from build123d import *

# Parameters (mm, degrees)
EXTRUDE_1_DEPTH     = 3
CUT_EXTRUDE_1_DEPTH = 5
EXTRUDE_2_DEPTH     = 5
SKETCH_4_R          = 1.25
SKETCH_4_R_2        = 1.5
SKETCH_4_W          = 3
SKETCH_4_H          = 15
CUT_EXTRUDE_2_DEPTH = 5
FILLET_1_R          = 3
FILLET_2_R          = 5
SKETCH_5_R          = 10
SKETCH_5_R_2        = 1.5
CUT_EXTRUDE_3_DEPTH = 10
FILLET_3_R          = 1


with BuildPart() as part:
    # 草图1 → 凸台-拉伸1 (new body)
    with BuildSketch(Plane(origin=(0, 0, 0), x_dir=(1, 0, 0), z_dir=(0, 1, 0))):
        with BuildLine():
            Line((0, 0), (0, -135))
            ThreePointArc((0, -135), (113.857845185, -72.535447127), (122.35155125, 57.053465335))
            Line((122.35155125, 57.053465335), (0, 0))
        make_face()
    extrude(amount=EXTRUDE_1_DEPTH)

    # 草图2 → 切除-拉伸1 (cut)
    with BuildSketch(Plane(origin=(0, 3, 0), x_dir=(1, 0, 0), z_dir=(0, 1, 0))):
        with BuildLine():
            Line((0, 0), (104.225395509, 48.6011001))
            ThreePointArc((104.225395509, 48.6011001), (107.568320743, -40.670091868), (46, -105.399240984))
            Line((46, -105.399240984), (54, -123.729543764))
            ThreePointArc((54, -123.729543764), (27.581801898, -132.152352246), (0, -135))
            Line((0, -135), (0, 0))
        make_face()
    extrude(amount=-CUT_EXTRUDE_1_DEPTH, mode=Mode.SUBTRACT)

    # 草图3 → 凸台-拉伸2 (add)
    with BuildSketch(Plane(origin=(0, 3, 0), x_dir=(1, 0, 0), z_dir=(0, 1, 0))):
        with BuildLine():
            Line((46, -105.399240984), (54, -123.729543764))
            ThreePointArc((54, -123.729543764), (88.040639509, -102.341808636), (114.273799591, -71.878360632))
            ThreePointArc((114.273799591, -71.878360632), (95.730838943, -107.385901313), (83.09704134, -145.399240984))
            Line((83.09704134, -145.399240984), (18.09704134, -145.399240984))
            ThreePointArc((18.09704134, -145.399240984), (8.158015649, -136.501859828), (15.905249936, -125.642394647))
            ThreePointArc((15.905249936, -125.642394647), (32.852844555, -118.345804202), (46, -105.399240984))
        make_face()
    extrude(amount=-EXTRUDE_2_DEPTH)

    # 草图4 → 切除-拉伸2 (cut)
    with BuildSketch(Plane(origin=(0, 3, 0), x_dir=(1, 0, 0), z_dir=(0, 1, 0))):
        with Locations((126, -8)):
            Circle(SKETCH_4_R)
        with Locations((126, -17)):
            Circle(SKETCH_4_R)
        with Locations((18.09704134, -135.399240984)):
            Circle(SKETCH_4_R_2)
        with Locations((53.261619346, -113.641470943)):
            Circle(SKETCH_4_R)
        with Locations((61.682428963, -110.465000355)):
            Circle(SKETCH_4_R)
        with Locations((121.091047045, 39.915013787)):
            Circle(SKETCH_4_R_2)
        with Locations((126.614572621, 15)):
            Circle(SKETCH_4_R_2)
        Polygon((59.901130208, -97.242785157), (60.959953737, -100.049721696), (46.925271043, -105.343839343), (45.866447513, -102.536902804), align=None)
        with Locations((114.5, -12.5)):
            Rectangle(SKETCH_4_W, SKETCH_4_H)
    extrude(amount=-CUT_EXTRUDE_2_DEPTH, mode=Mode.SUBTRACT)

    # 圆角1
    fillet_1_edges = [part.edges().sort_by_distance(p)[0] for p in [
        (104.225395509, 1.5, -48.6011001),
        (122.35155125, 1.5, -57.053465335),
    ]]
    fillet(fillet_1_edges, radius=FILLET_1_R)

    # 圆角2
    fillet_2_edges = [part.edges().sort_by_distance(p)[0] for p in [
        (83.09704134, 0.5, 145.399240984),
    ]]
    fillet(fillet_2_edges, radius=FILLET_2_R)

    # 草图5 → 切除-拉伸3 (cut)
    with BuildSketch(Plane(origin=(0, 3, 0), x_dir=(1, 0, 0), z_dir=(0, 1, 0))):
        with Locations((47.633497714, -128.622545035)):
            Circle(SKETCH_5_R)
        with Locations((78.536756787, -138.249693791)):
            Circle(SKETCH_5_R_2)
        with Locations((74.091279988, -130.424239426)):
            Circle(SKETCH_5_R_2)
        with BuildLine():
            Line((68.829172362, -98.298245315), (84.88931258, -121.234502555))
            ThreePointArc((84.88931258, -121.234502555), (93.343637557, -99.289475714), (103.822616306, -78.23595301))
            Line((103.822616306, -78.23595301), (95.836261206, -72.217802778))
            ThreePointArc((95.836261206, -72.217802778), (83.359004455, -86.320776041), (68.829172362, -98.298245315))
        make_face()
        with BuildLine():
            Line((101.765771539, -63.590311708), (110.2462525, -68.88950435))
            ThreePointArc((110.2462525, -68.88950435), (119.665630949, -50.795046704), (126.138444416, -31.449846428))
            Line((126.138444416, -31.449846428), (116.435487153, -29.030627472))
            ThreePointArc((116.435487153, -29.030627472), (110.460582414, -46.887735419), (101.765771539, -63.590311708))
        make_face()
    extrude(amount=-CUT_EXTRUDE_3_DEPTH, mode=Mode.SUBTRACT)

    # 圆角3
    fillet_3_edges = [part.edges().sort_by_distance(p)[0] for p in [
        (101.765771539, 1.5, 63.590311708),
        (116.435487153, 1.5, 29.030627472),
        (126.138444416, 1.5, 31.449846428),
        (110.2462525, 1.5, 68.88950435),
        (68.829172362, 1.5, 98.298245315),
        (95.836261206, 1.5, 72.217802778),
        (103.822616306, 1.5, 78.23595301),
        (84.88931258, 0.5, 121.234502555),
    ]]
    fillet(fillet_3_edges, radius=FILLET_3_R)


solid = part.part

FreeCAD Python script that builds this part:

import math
import FreeCAD as App
import Part
import Sketcher
from FreeCAD import Vector
Q = App.Units.Quantity


def edges_at(feature, points):
    """Names of the edges that pass closest to the given points."""
    edges = feature.Shape.Edges
    near = lambda p: min(range(len(edges)), key=lambda i: edges[i].distToShape(Part.Vertex(*p))[0])
    return sorted({f"Edge{near(p) + 1}" for p in points})

doc = App.newDocument("Part")
body = doc.addObject("PartDesign::Body", "Body")

# Sketch on XZ plane
sketch1 = body.newObject("Sketcher::SketchObject", "Sketch")
sketch1.AttachmentSupport = (doc.getObject("XZ_Plane"), [""])
sketch1.MapMode = "FlatFace"
sketch1.addGeometry(Part.LineSegment(Vector(0, 0, 0), Vector(0, 135, 0)), False)
sketch1.addGeometry(Part.ArcOfCircle(Part.Circle(Vector(0, 0, 0), Vector(0, 0, 1), 135), math.radians(-25), math.radians(90)), False)
sketch1.addGeometry(Part.LineSegment(Vector(122, -57, 0), Vector(0, 0, 0)), False)
sketch1.addConstraint(Sketcher.Constraint("Coincident", 0, 2, 1, 2))
sketch1.addConstraint(Sketcher.Constraint("Coincident", 1, 1, 2, 1))
sketch1.addConstraint(Sketcher.Constraint("Coincident", 2, 2, 0, 1))
sketch1.addConstraint(Sketcher.Constraint("Vertical", 0))
sketch1.addConstraint(Sketcher.Constraint("Coincident", 1, 3, -1, 1))
sketch1.addConstraint(Sketcher.Constraint("Coincident", 2, 2, -1, 1))
sketch1.addConstraint(Sketcher.Constraint("Radius", 1, Q("135 mm")))
sketch1.addConstraint(Sketcher.Constraint("Angle", 2, Q("155 deg")))
pad1 = body.newObject("PartDesign::Pad", "Pad")
pad1.Profile = sketch1
pad1.Length = 3
pad1.Reversed = True

# Sketch on XZ plane
sketch2 = body.newObject("Sketcher::SketchObject", "Sketch001")
sketch2.AttachmentSupport = (doc.getObject("XZ_Plane"), [""])
sketch2.MapMode = "FlatFace"
sketch2.AttachmentOffset = App.Placement(Vector(0, 0, -3), App.Rotation())
sketch2.addGeometry(Part.LineSegment(Vector(104, -49, 0), Vector(0, 0, 0)), False)
sketch2.addGeometry(Part.LineSegment(Vector(0, 0, 0), Vector(0, 135, 0)), False)
sketch2.addGeometry(Part.ArcOfCircle(Part.Circle(Vector(0, 0, 0), Vector(0, 0, 1), 135), math.radians(66), math.radians(90)), False)
sketch2.addGeometry(Part.LineSegment(Vector(54, 124, 0), Vector(46, 105, 0)), False)
sketch2.addGeometry(Part.ArcOfCircle(Part.Circle(Vector(0, 0, 0), Vector(0, 0, 1), 115), math.radians(-25), math.radians(66)), False)
sketch2.addConstraint(Sketcher.Constraint("Coincident", 0, 2, 1, 1))
sketch2.addConstraint(Sketcher.Constraint("Coincident", 1, 2, 2, 2))
sketch2.addConstraint(Sketcher.Constraint("Coincident", 2, 1, 3, 1))
sketch2.addConstraint(Sketcher.Constraint("Coincident", 3, 2, 4, 2))
sketch2.addConstraint(Sketcher.Constraint("Coincident", 4, 1, 0, 1))
sketch2.addConstraint(Sketcher.Constraint("Vertical", 1))
sketch2.addConstraint(Sketcher.Constraint("Coincident", 2, 3, -1, 1))
sketch2.addConstraint(Sketcher.Constraint("Coincident", 4, 3, -1, 1))
sketch2.addConstraint(Sketcher.Constraint("Coincident", 0, 2, -1, 1))
sketch2.addConstraint(Sketcher.Constraint("Radius", 2, Q("135 mm")))
sketch2.addConstraint(Sketcher.Constraint("Radius", 4, Q("115 mm")))
sketch2.addConstraint(Sketcher.Constraint("Angle", 0, Q("155 deg")))
sketch2.addConstraint(Sketcher.Constraint("DistanceX", -1, 1, 2, 1, Q("54 mm")))
sketch2.addConstraint(Sketcher.Constraint("DistanceX", -1, 1, 3, 2, Q("46 mm")))
pocket1 = body.newObject("PartDesign::Pocket", "Pocket")
pocket1.Profile = sketch2
pocket1.Length = 5
pocket1.Reversed = True

# Sketch on XZ plane
sketch3 = body.newObject("Sketcher::SketchObject", "Sketch002")
sketch3.AttachmentSupport = (doc.getObject("XZ_Plane"), [""])
sketch3.MapMode = "FlatFace"
sketch3.AttachmentOffset = App.Placement(Vector(0, 0, -3), App.Rotation())
sketch3.addGeometry(Part.LineSegment(Vector(54, 124, 0), Vector(46, 105, 0)), False)
sketch3.addGeometry(Part.ArcOfCircle(Part.Circle(Vector(5, 77, 0), Vector(0, 0, 1), 50), math.radians(35), math.radians(77)), False)
sketch3.addGeometry(Part.ArcOfCircle(Part.Circle(Vector(18, 135, 0), Vector(0, 0, 1), 10), math.radians(90), math.radians(257)), False)
sketch3.addGeometry(Part.LineSegment(Vector(18, 145, 0), Vector(83, 145, 0)), False)
sketch3.addGeometry(Part.ArcOfCircle(Part.Circle(Vector(326, 205, 0), Vector(0, 0, 1), 250), math.radians(-166.21), math.radians(-147.83)), False)
sketch3.addGeometry(Part.ArcOfCircle(Part.Circle(Vector(0, 0, 0), Vector(0, 0, 1), 135), math.radians(32), math.radians(66)), False)
sketch3.addConstraint(Sketcher.Constraint("Coincident", 0, 2, 1, 1))
sketch3.addConstraint(Sketcher.Constraint("Tangent", 1, 2, 2, 2))
sketch3.addConstraint(Sketcher.Constraint("Tangent", 2, 1, 3, 1))
sketch3.addConstraint(Sketcher.Constraint("Coincident", 3, 2, 4, 1))
sketch3.addConstraint(Sketcher.Constraint("Tangent", 4, 2, 5, 1))
sketch3.addConstraint(Sketcher.Constraint("Coincident", 5, 2, 0, 1))
sketch3.addConstraint(Sketcher.Constraint("Horizontal", 3))
sketch3.addConstraint(Sketcher.Constraint("Coincident", 5, 3, -1, 1))
sketch3.addConstraint(Sketcher.Constraint("Radius", 1, Q("50 mm")))
sketch3.addConstraint(Sketcher.Constraint("Radius", 2, Q("10 mm")))
sketch3.addConstraint(Sketcher.Constraint("Radius", 4, Q("250 mm")))
sketch3.addConstraint(Sketcher.Constraint("Radius", 5, Q("135 mm")))
sketch3.addConstraint(Sketcher.Constraint("DistanceX", 3, 1, 3, 2, Q("65 mm")))
sketch3.addConstraint(Sketcher.Constraint("Distance", 0, Q("20 mm")))
sketch3.addConstraint(Sketcher.Constraint("DistanceX", -1, 1, 0, 2, Q("46 mm")))
sketch3.addConstraint(Sketcher.Constraint("DistanceX", -1, 1, 5, 2, Q("54 mm")))
sketch3.addConstraint(Sketcher.Constraint("DistanceY", 0, 2, 2, 3, Q("30 mm")))
sketch3.addConstraint(Sketcher.Constraint("DistanceX", -1, 1, 2, 3, Q("18.097041 mm")))
pad2 = body.newObject("PartDesign::Pad", "Pad001")
pad2.Profile = sketch3
pad2.Length = 5

# Sketch on XZ plane
sketch4 = body.newObject("Sketcher::SketchObject", "Sketch003")
sketch4.AttachmentSupport = (doc.getObject("XZ_Plane"), [""])
sketch4.MapMode = "FlatFace"
sketch4.AttachmentOffset = App.Placement(Vector(0, 0, -3), App.Rotation())
sketch4.addGeometry(Part.Circle(Vector(126, 8, 0), Vector(0, 0, 1), 1.2), False)
sketch4.addGeometry(Part.Circle(Vector(126, 17, 0), Vector(0, 0, 1), 1.2), False)
sketch4.addGeometry(Part.Circle(Vector(18.1, 135.4, 0), Vector(0, 0, 1), 1.5), False)
sketch4.addGeometry(Part.Circle(Vector(53.3, 113.6, 0), Vector(0, 0, 1), 1.2), False)
sketch4.addGeometry(Part.Circle(Vector(61.7, 110.5, 0), Vector(0, 0, 1), 1.2), False)
sketch4.addGeometry(Part.Circle(Vector(121.1, -39.9, 0), Vector(0, 0, 1), 1.5), False)
sketch4.addGeometry(Part.Circle(Vector(126.6, -15, 0), Vector(0, 0, 1), 1.5), False)
sketch4.addGeometry(Part.LineSegment(Vector(61, 100, 0), Vector(59.9, 97.2, 0)), False)
sketch4.addGeometry(Part.LineSegment(Vector(59.9, 97.2, 0), Vector(45.9, 102.5, 0)), False)
sketch4.addGeometry(Part.LineSegment(Vector(45.9, 102.5, 0), Vector(46.9, 105.3, 0)), False)
sketch4.addGeometry(Part.LineSegment(Vector(46.9, 105.3, 0), Vector(61, 100, 0)), False)
sketch4.addGeometry(Part.LineSegment(Vector(113, 5, 0), Vector(113, 20, 0)), False)
sketch4.addGeometry(Part.LineSegment(Vector(113, 20, 0), Vector(116, 20, 0)), False)
sketch4.addGeometry(Part.LineSegment(Vector(116, 20, 0), Vector(116, 5, 0)), False)
sketch4.addGeometry(Part.LineSegment(Vector(116, 5, 0), Vector(113, 5, 0)), False)
sketch4.addConstraint(Sketcher.Constraint("Coincident", 7, 2, 8, 1))
sketch4.addConstraint(Sketcher.Constraint("Coincident", 8, 2, 9, 1))
sketch4.addConstraint(Sketcher.Constraint("Coincident", 9, 2, 10, 1))
sketch4.addConstraint(Sketcher.Constraint("Coincident", 10, 2, 7, 1))
sketch4.addConstraint(Sketcher.Constraint("Coincident", 11, 2, 12, 1))
sketch4.addConstraint(Sketcher.Constraint("Coincident", 12, 2, 13, 1))
sketch4.addConstraint(Sketcher.Constraint("Coincident", 13, 2, 14, 1))
sketch4.addConstraint(Sketcher.Constraint("Coincident", 14, 2, 11, 1))
sketch4.addConstraint(Sketcher.Constraint("Vertical", 11))
sketch4.addConstraint(Sketcher.Constraint("Horizontal", 12))
sketch4.addConstraint(Sketcher.Constraint("Vertical", 13))
sketch4.addConstraint(Sketcher.Constraint("Horizontal", 14))
sketch4.addConstraint(Sketcher.Constraint("Equal", 0, 1))
sketch4.addConstraint(Sketcher.Constraint("Equal", 1, 3))
sketch4.addConstraint(Sketcher.Constraint("Equal", 3, 4))
sketch4.addConstraint(Sketcher.Constraint("Equal", 2, 5))
sketch4.addConstraint(Sketcher.Constraint("Equal", 5, 6))
sketch4.addConstraint(Sketcher.Constraint("Perpendicular", 7, 8))
sketch4.addConstraint(Sketcher.Constraint("Perpendicular", 8, 9))
sketch4.addConstraint(Sketcher.Constraint("Perpendicular", 9, 10))
sketch4.addConstraint(Sketcher.Constraint("Vertical", 0, 3, 1, 3))
sketch4.addConstraint(Sketcher.Constraint("Diameter", 2, Q("3 mm")))
sketch4.addConstraint(Sketcher.Constraint("Diameter", 0, Q("2.5 mm")))
sketch4.addConstraint(Sketcher.Constraint("DistanceX", 12, 1, 12, 2, Q("3 mm")))
sketch4.addConstraint(Sketcher.Constraint("DistanceY", 11, 1, 11, 2, Q("15 mm")))
sketch4.addConstraint(Sketcher.Constraint("Distance", 7, Q("3 mm")))
sketch4.addConstraint(Sketcher.Constraint("Distance", 8, Q("15 mm")))
sketch4.addConstraint(Sketcher.Constraint("DistanceX", -1, 1, 0, 3, Q("126 mm")))
sketch4.addConstraint(Sketcher.Constraint("DistanceY", -1, 1, 0, 3, Q("8 mm")))
sketch4.addConstraint(Sketcher.Constraint("DistanceY", -1, 1, 1, 3, Q("17 mm")))
sketch4.addConstraint(Sketcher.Constraint("DistanceY", 6, 3, -1, 1, Q("15 mm")))
sketch4.addConstraint(Sketcher.Constraint("DistanceX", -1, 1, 11, 2, Q("113 mm")))
sketch4.addConstraint(Sketcher.Constraint("DistanceY", -1, 1, 11, 2, Q("20 mm")))
sketch4.addConstraint(Sketcher.Constraint("DistanceY", -1, 1, 4, 3, Q("110.465 mm")))
sketch4.addConstraint(Sketcher.Constraint("DistanceX", 7, 2, 4, 3, Q("1.781299 mm")))
sketch4.addConstraint(Sketcher.Constraint("DistanceY", 9, 2, 2, 3, Q("30.055402 mm")))
sketch4.addConstraint(Sketcher.Constraint("DistanceX", -1, 1, 2, 3, Q("18.097041 mm")))
sketch4.addConstraint(Sketcher.Constraint("DistanceY", -1, 1, 2, 3, Q("135.399241 mm")))
sketch4.addConstraint(Sketcher.Constraint("DistanceX", -1, 1, 3, 3, Q("53.261619 mm")))
sketch4.addConstraint(Sketcher.Constraint("DistanceY", -1, 1, 3, 3, Q("113.641471 mm")))
sketch4.addConstraint(Sketcher.Constraint("DistanceX", -1, 1, 4, 3, Q("61.682429 mm")))
sketch4.addConstraint(Sketcher.Constraint("DistanceX", -1, 1, 9, 2, Q("46.925271 mm")))
sketch4.addConstraint(Sketcher.Constraint("DistanceX", 4, 3, 5, 3, Q("59.408618 mm")))
sketch4.addConstraint(Sketcher.Constraint("DistanceY", 5, 3, -1, 1, Q("39.915014 mm")))
sketch4.addConstraint(Sketcher.Constraint("DistanceX", -1, 1, 6, 3, Q("126.614573 mm")))
pocket2 = body.newObject("PartDesign::Pocket", "Pocket001")
pocket2.Profile = sketch4
pocket2.Length = 5
pocket2.Reversed = True
doc.recompute()

fillet = body.newObject("PartDesign::Fillet", "Fillet")
fillet.Base = (pocket2, edges_at(pocket2, [(104.225, 1.5, -48.601), (122.352, 1.5, -57.053)]))
fillet.Radius = 3
doc.recompute()

fillet2 = body.newObject("PartDesign::Fillet", "Fillet001")
fillet2.Base = (fillet, edges_at(fillet, [(83.097, 0.5, 145.399)]))
fillet2.Radius = 5

# Sketch on XZ plane
sketch5 = body.newObject("Sketcher::SketchObject", "Sketch004")
sketch5.AttachmentSupport = (doc.getObject("XZ_Plane"), [""])
sketch5.MapMode = "FlatFace"
sketch5.AttachmentOffset = App.Placement(Vector(0, 0, -3), App.Rotation())
sketch5.addGeometry(Part.Circle(Vector(47.6, 128.6, 0), Vector(0, 0, 1), 10), False)
sketch5.addGeometry(Part.Circle(Vector(78.5, 138.2, 0), Vector(0, 0, 1), 1.5), False)
sketch5.addGeometry(Part.Circle(Vector(74.1, 130.4, 0), Vector(0, 0, 1), 1.5), False)
sketch5.addGeometry(Part.LineSegment(Vector(68.8, 98.3, 0), Vector(84.9, 121.2, 0)), False)
sketch5.addGeometry(Part.ArcOfCircle(Part.Circle(Vector(322.1, 200, 0), Vector(0, 0, 1), 250), math.radians(-161.63), math.radians(-150.84)), False)
sketch5.addGeometry(Part.LineSegment(Vector(103.8, 78.2, 0), Vector(95.8, 72.2, 0)), False)
sketch5.addGeometry(Part.ArcOfCircle(Part.Circle(Vector(0, 0, 0), Vector(0, 0, 1), 120), math.radians(37), math.radians(55)), False)
sketch5.addGeometry(Part.LineSegment(Vector(101.8, 63.6, 0), Vector(110.2, 68.9, 0)), False)
sketch5.addGeometry(Part.ArcOfCircle(Part.Circle(Vector(0, 0, 0), Vector(0, 0, 1), 130), math.radians(14), math.radians(32)), False)
sketch5.addGeometry(Part.LineSegment(Vector(126.1, 31.4, 0), Vector(116.4, 29, 0)), False)
sketch5.addGeometry(Part.ArcOfCircle(Part.Circle(Vector(0, 0, 0), Vector(0, 0, 1), 120), math.radians(14), math.radians(32)), False)
sketch5.addConstraint(Sketcher.Constraint("Coincident", 3, 2, 4, 1))
sketch5.addConstraint(Sketcher.Constraint("Coincident", 4, 2, 5, 1))
sketch5.addConstraint(Sketcher.Constraint("Coincident", 5, 2, 6, 1))
sketch5.addConstraint(Sketcher.Constraint("Coincident", 6, 2, 3, 1))
sketch5.addConstraint(Sketcher.Constraint("Coincident", 7, 2, 8, 2))
sketch5.addConstraint(Sketcher.Constraint("Coincident", 8, 1, 9, 1))
sketch5.addConstraint(Sketcher.Constraint("Coincident", 9, 2, 10, 1))
sketch5.addConstraint(Sketcher.Constraint("Coincident", 10, 2, 7, 1))
sketch5.addConstraint(Sketcher.Constraint("Coincident", 6, 3, -1, 1))
sketch5.addConstraint(Sketcher.Constraint("Coincident", 8, 3, -1, 1))
sketch5.addConstraint(Sketcher.Constraint("Coincident", 10, 3, -1, 1))
sketch5.addConstraint(Sketcher.Constraint("Equal", 1, 2))
sketch5.addConstraint(Sketcher.Constraint("Equal", 6, 10))
sketch5.addConstraint(Sketcher.Constraint("Equal", 5, 7))
sketch5.addConstraint(Sketcher.Constraint("Diameter", 0, Q("20 mm")))
sketch5.addConstraint(Sketcher.Constraint("Diameter", 1, Q("3 mm")))
sketch5.addConstraint(Sketcher.Constraint("Radius", 4, Q("250 mm")))
sketch5.addConstraint(Sketcher.Constraint("Radius", 6, Q("120 mm")))
sketch5.addConstraint(Sketcher.Constraint("Radius", 8, Q("130 mm")))
sketch5.addConstraint(Sketcher.Constraint("Angle", 3, Q("55 deg")))
sketch5.addConstraint(Sketcher.Constraint("Angle", 5, Q("-143 deg")))
sketch5.addConstraint(Sketcher.Constraint("Angle", 7, Q("32 deg")))
sketch5.addConstraint(Sketcher.Constraint("Angle", 9, Q("-166 deg")))
sketch5.addConstraint(Sketcher.Constraint("Distance", 3, Q("28 mm")))
sketch5.addConstraint(Sketcher.Constraint("DistanceY", 7, 2, 3, 2, Q("52.344998 mm")))
sketch5.addConstraint(Sketcher.Constraint("DistanceY", 5, 2, 3, 2, Q("49.0167 mm")))
sketch5.addConstraint(Sketcher.Constraint("DistanceY", 6, 2, 0, 3, Q("30.3243 mm")))
sketch5.addConstraint(Sketcher.Constraint("DistanceY", 8, 1, 6, 2, Q("66.848399 mm")))
sketch5.addConstraint(Sketcher.Constraint("DistanceX", -1, 1, 2, 3, Q("74.09128 mm")))
sketch5.addConstraint(Sketcher.Constraint("DistanceY", -1, 1, 2, 3, Q("130.424239 mm")))
sketch5.addConstraint(Sketcher.Constraint("DistanceX", -1, 1, 4, 3, Q("322.145039 mm")))
sketch5.addConstraint(Sketcher.Constraint("DistanceX", 0, 3, 1, 3, Q("30.903259 mm")))
sketch5.addConstraint(Sketcher.Constraint("DistanceY", 0, 3, 1, 3, Q("9.627149 mm")))
sketch5.addConstraint(Sketcher.Constraint("DistanceX", 0, 3, 4, 3, Q("274.511542 mm")))
pocket3 = body.newObject("PartDesign::Pocket", "Pocket002")
pocket3.Profile = sketch5
pocket3.Length = 10
pocket3.Reversed = True
doc.recompute()

fillet3 = body.newObject("PartDesign::Fillet", "Fillet002")
fillet3.Base = (pocket3, edges_at(pocket3, [
    (101.766, 1.5, 63.59),
    (116.435, 1.5, 29.031),
    (126.138, 1.5, 31.45),
    (110.246, 1.5, 68.89),
    (68.829, 1.5, 98.298),
    (95.836, 1.5, 72.218),
    (103.823, 1.5, 78.236),
    (84.889, 0.5, 121.235),
]))
fillet3.Radius = 1

doc.recompute()
